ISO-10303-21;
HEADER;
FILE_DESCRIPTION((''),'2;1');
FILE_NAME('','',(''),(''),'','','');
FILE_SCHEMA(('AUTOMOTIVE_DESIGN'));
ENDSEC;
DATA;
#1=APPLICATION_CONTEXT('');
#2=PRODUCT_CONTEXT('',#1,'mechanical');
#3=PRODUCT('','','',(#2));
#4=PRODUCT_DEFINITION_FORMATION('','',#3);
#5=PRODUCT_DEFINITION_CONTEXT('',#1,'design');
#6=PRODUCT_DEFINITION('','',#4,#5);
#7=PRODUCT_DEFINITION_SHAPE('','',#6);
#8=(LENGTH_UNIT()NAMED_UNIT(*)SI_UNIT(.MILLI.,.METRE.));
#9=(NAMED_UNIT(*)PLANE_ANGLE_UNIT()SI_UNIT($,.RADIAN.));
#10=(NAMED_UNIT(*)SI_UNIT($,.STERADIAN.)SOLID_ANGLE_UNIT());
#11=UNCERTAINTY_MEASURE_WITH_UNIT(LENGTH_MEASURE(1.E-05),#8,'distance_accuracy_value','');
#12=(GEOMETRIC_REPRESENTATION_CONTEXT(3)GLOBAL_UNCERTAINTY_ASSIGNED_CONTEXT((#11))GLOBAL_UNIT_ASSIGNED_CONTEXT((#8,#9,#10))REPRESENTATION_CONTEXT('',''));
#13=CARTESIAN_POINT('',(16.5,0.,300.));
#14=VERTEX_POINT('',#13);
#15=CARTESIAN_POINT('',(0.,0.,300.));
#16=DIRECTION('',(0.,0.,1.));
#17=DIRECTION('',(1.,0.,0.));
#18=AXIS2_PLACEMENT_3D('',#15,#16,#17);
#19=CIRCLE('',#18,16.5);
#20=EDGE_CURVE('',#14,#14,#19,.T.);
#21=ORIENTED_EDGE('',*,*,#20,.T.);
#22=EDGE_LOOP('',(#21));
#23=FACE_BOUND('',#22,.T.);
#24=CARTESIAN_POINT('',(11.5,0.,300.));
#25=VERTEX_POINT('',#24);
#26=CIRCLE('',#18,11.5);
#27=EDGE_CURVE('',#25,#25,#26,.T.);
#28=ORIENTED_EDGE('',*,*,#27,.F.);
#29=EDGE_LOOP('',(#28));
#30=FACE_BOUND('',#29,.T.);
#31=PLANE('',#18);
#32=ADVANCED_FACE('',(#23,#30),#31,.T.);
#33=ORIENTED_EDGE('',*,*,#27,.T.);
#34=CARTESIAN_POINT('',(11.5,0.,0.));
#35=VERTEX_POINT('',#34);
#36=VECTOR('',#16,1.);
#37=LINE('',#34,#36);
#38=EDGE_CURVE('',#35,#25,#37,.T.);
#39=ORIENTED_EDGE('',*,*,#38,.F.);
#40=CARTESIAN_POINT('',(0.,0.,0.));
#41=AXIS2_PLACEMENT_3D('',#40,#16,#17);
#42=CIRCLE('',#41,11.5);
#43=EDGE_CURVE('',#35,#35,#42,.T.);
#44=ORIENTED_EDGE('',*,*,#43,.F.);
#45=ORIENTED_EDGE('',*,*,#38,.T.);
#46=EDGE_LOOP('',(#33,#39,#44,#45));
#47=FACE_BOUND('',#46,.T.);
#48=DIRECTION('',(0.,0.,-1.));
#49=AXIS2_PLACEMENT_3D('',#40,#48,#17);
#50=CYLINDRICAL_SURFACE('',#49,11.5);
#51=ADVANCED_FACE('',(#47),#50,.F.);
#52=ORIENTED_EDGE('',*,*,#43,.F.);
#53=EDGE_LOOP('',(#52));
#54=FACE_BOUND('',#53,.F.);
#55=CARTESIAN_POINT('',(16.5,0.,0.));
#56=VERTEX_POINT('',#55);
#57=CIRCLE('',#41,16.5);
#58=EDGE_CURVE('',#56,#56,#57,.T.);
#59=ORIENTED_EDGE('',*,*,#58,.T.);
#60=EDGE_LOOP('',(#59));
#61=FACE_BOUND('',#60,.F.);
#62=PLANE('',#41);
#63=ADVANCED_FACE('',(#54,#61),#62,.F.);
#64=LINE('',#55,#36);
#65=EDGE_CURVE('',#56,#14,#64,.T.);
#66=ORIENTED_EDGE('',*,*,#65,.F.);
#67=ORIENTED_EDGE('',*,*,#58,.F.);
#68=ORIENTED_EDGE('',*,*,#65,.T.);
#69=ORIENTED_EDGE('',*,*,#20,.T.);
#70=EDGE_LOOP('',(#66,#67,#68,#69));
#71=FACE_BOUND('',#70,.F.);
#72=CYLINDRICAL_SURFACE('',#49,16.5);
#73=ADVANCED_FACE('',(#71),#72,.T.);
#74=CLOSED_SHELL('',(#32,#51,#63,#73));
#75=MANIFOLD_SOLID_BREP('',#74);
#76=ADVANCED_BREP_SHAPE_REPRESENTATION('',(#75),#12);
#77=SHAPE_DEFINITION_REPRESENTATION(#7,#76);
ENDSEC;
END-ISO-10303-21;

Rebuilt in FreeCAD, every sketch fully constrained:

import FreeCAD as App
import Part
import Sketcher

V = App.Vector

doc = App.newDocument("Part")
params = doc.addObject("Spreadsheet::Sheet", "Params")
for row, (alias, value) in enumerate([
    ("sketch1_diameter", "33 mm"),
    ("sketch1_diameter2", "23 mm"),
    ("pad1_length", "300 mm"),
], start=1):
    params.set(f"A{row}", alias)
    params.set(f"B{row}", "=" + value)
    params.setAlias(f"B{row}", alias)

body = doc.addObject("PartDesign::Body", "Body")

# Sketch on XY plane
sketch1 = body.newObject("Sketcher::SketchObject", "Sketch")
sketch1.AttachmentSupport = (doc.getObject("XY_Plane"), [""])
sketch1.MapMode = "FlatFace"
sketch1.addGeometry(Part.Circle(V(0, 0, 0), V(0, 0, 1), 16), False)
sketch1.addGeometry(Part.Circle(V(0, 0, 0), V(0, 0, 1), 12), False)
sketch1.addConstraint(Sketcher.Constraint("Coincident", 0, 3, -1, 1))
sketch1.addConstraint(Sketcher.Constraint("Coincident", 1, 3, -1, 1))
sketch1.addConstraint(Sketcher.Constraint("Diameter", 0, 33.0))
sketch1.addConstraint(Sketcher.Constraint("Diameter", 1, 23.0))
sketch1.setExpression("Constraints[2]", "Params.sketch1_diameter")
sketch1.setExpression("Constraints[3]", "Params.sketch1_diameter2")
pad1 = body.newObject("PartDesign::Pad", "Pad")
pad1.Profile = sketch1
pad1.setExpression("Length", "Params.pad1_length")

doc.recompute()
